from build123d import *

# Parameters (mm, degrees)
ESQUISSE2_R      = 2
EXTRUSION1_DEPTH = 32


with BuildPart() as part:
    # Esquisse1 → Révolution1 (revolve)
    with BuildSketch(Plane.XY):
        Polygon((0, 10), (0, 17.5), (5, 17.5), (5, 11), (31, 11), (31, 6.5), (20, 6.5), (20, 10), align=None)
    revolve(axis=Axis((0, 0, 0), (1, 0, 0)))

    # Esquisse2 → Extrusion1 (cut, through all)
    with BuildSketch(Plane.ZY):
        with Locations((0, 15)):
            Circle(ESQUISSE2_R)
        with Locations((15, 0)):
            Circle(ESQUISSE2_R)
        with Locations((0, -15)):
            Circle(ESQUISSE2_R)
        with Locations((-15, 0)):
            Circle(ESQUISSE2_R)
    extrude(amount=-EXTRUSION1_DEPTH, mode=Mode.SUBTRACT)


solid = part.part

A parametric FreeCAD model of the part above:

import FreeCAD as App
import Part
import Sketcher

V = App.Vector


def add_polygon(sketch, points):
    """Adds a closed chain of lines whose ends are joined by coincident constraints."""
    first, n = sketch.GeometryCount, len(points)
    for a, b in zip(points, points[1:] + points[:1]):
        sketch.addGeometry(Part.LineSegment(App.Vector(*a, 0), App.Vector(*b, 0)), False)
    for i in range(n):
        sketch.addConstraint(Sketcher.Constraint("Coincident", first + i, 2, first + (i + 1) % n, 1))

doc = App.newDocument("Part")
body = doc.addObject("PartDesign::Body", "Body")

# Sketch on XY plane
sketch1 = body.newObject("Sketcher::SketchObject", "Sketch")
sketch1.AttachmentSupport = (doc.getObject("XY_Plane"), [""])
sketch1.MapMode = "FlatFace"
add_polygon(sketch1, [(0, 17.5), (0, 10), (20, 10), (20, 6.5), (31, 6.5), (31, 11), (5, 11), (5, 17.5)])  # lines 0-7
sketch1.addConstraint([
    Sketcher.Constraint("Vertical", 0),
    Sketcher.Constraint("Horizontal", 1),
    Sketcher.Constraint("Vertical", 2),
    Sketcher.Constraint("Horizontal", 3),
    Sketcher.Constraint("Vertical", 4),
    Sketcher.Constraint("Horizontal", 5),
    Sketcher.Constraint("Vertical", 6),
    Sketcher.Constraint("Horizontal", 7),
    Sketcher.Constraint("PointOnObject", 0, 2, -2),
    Sketcher.Constraint("DistanceX", 1, 1, 1, 2, 20.0),
    Sketcher.Constraint("DistanceX", 3, 1, 3, 2, 11.0),
    Sketcher.Constraint("DistanceX", 5, 2, 5, 1, 26.0),
    Sketcher.Constraint("DistanceY", 0, 2, 0, 1, 7.5),
    Sketcher.Constraint("DistanceY", 2, 2, 2, 1, 3.5),
    Sketcher.Constraint("DistanceY", 4, 1, 4, 2, 4.5),
    Sketcher.Constraint("DistanceY", -1, 1, 0, 2, 10.0),
])
revolution = body.newObject("PartDesign::Revolution", "Revolution")
revolution.Profile = sketch1
revolution.ReferenceAxis = (sketch1, ["H_Axis"])
revolution.Angle = 360

# Sketch on YZ plane
sketch2 = body.newObject("Sketcher::SketchObject", "Sketch001")
sketch2.AttachmentSupport = (doc.getObject("YZ_Plane"), [""])
sketch2.MapMode = "FlatFace"
sketch2.addGeometry([
    Part.Circle(V(15, 0, 0), V(0, 0, 1), 2),
    Part.Circle(V(0, 15, 0), V(0, 0, 1), 2),
    Part.Circle(V(-15, 0, 0), V(0, 0, 1), 2),
    Part.Circle(V(0, -15, 0), V(0, 0, 1), 2),
], False)
sketch2.addConstraint([
    Sketcher.Constraint("Equal", 0, 1),
    Sketcher.Constraint("Equal", 1, 2),
    Sketcher.Constraint("Equal", 2, 3),
    Sketcher.Constraint("Symmetric", 0, 3, 2, 3, -1, 1),
    Sketcher.Constraint("Symmetric", 1, 3, 3, 3, -1, 1),
    Sketcher.Constraint("PointOnObject", 0, 3, -1),
    Sketcher.Constraint("PointOnObject", 1, 3, -2),
    Sketcher.Constraint("Diameter", 0, 4.0),
    Sketcher.Constraint("DistanceX", -1, 1, 0, 3, 15.0),
    Sketcher.Constraint("DistanceY", -1, 1, 1, 3, 15.0),
])
pocket1 = body.newObject("PartDesign::Pocket", "Pocket")
pocket1.Profile = sketch2
pocket1.Type = "ThroughAll"
pocket1.Reversed = True

doc.recompute()
